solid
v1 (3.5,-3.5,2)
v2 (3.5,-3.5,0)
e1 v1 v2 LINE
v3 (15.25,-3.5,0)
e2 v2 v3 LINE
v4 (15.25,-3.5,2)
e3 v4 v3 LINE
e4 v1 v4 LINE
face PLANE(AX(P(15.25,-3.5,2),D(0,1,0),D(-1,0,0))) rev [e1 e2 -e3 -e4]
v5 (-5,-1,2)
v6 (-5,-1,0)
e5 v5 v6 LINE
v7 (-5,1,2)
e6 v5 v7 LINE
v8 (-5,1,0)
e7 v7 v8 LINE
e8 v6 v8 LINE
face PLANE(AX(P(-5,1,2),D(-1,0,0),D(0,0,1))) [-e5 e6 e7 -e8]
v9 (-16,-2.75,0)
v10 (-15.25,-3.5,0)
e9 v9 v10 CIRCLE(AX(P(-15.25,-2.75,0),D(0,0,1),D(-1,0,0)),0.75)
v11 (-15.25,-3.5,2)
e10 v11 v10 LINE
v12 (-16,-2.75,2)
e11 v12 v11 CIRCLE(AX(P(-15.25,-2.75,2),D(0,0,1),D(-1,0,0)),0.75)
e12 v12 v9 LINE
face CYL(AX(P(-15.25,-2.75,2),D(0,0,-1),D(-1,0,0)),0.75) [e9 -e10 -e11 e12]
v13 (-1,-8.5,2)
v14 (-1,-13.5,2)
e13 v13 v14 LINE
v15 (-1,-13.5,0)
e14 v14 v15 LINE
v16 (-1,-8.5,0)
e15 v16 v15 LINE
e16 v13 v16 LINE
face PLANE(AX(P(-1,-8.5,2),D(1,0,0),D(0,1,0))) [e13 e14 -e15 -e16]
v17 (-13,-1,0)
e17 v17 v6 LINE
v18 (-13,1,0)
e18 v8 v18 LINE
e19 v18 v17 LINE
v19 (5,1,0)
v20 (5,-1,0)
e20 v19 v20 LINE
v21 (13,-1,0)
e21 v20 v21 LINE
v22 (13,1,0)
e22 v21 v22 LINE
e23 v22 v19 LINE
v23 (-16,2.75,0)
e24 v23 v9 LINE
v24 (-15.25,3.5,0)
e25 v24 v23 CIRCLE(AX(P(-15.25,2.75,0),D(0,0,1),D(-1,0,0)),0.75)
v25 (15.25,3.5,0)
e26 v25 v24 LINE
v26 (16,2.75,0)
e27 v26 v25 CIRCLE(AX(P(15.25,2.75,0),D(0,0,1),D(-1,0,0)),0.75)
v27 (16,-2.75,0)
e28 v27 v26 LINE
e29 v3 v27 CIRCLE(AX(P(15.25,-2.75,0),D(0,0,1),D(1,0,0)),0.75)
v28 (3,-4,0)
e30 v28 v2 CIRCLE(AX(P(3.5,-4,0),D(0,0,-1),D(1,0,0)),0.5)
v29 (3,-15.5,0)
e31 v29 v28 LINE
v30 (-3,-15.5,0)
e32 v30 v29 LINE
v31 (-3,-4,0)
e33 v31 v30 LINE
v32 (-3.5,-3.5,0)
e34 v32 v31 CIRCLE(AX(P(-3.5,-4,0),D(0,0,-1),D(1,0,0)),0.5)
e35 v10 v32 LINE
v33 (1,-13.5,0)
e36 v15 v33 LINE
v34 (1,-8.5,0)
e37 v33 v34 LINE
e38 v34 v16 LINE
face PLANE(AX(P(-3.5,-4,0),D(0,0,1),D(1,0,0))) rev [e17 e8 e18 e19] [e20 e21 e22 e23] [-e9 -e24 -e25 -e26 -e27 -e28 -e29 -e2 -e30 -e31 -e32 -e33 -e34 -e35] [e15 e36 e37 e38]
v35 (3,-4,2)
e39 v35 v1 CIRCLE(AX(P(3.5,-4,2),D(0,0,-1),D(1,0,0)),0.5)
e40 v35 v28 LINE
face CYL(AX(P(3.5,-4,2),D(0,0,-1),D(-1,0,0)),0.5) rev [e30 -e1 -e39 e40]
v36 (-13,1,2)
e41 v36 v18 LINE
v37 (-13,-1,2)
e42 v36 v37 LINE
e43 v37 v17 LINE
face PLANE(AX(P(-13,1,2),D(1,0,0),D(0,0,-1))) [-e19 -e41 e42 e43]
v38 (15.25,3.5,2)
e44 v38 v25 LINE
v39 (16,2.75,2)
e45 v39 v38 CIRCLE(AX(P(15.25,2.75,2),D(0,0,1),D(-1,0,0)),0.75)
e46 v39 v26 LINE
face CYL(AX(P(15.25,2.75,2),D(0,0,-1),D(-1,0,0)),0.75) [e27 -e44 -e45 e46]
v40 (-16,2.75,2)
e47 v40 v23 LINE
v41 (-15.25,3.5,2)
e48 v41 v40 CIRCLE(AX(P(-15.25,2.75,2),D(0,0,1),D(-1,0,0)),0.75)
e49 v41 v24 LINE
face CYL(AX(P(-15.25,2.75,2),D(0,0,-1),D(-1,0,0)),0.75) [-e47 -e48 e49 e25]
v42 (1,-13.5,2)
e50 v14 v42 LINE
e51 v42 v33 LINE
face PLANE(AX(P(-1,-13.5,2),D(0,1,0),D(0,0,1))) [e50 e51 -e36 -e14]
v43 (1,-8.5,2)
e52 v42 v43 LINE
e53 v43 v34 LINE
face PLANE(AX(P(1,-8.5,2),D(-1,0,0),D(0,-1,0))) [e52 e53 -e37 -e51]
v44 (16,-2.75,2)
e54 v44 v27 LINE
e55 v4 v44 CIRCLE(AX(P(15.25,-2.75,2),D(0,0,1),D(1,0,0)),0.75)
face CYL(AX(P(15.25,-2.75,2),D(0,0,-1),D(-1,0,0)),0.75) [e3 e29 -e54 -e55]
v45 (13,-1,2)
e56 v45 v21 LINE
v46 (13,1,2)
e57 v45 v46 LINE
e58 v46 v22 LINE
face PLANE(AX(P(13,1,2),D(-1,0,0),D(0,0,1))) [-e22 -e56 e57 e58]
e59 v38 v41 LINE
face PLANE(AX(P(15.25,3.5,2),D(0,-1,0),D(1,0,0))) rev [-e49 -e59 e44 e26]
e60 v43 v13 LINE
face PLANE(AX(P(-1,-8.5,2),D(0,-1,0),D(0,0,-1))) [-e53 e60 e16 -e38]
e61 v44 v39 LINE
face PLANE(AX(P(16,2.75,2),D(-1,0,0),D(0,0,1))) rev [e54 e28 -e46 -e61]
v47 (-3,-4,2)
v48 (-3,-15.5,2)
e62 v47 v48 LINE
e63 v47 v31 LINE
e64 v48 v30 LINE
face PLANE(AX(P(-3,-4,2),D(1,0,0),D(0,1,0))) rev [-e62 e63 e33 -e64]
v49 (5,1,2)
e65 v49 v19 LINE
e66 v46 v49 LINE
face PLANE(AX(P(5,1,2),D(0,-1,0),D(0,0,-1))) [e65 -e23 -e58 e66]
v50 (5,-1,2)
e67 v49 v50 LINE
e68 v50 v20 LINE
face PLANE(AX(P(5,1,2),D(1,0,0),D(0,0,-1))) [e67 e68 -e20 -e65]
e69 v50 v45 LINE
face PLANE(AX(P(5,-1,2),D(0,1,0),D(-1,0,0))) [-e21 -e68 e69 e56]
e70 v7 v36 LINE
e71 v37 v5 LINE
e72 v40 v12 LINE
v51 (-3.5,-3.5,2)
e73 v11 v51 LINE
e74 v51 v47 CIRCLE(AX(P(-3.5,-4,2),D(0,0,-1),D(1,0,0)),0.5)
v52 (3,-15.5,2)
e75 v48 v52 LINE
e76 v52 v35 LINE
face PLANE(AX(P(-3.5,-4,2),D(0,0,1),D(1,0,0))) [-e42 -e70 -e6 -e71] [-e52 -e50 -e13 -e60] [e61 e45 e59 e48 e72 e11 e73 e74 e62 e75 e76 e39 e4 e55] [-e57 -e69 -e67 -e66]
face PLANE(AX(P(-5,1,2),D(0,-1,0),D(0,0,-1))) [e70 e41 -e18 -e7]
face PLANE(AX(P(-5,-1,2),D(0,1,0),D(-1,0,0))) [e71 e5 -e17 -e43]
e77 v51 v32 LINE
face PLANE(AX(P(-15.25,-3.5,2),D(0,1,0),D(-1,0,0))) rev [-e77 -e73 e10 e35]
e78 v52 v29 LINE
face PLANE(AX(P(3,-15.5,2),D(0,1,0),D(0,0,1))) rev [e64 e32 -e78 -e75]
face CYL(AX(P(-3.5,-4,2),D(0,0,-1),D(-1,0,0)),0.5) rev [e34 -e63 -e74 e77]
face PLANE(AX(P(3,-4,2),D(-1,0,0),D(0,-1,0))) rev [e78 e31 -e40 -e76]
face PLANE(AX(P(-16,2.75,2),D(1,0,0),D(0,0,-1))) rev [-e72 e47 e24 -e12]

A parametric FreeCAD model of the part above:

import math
import FreeCAD as App
import Part
import Sketcher

V = App.Vector


def add_polygon(sketch, points):
    """Adds a closed chain of lines whose ends are joined by coincident constraints."""
    first, n = sketch.GeometryCount, len(points)
    for a, b in zip(points, points[1:] + points[:1]):
        sketch.addGeometry(Part.LineSegment(App.Vector(*a, 0), App.Vector(*b, 0)), False)
    for i in range(n):
        sketch.addConstraint(Sketcher.Constraint("Coincident", first + i, 2, first + (i + 1) % n, 1))

doc = App.newDocument("Part")
params = doc.addObject("Spreadsheet::Sheet", "Params")
for row, (alias, value) in enumerate([
    ("sketch1_radius", "0.5 mm"),
    ("sketch1_width", "6 mm"),
    ("sketch1_width2", "2 mm"),
    ("sketch1_width3", "8 mm"),
    ("sketch1_height", "5 mm"),
    ("pad1_length", "2 mm"),
], start=1):
    params.set(f"A{row}", alias)
    params.set(f"B{row}", "=" + value)
    params.setAlias(f"B{row}", alias)

body = doc.addObject("PartDesign::Body", "Body")

# Sketch on XY plane
sketch1 = body.newObject("Sketcher::SketchObject", "Sketch")
sketch1.AttachmentSupport = (doc.getObject("XY_Plane"), [""])
sketch1.MapMode = "FlatFace"
sketch1.addGeometry(Part.LineSegment(V(15.25, 3.5, 0), V(-15.25, 3.5, 0)), False)  # 0
sketch1.addGeometry(Part.ArcOfCircle(Part.Circle(V(-15.25, 2.75, 0), V(0, 0, 1), 0.75), math.radians(90), math.radians(180)), False)  # 1
sketch1.addGeometry(Part.LineSegment(V(-16, 2.75, 0), V(-16, -2.75, 0)), False)  # 2
sketch1.addGeometry(Part.ArcOfCircle(Part.Circle(V(-15.25, -2.75, 0), V(0, 0, 1), 0.75), math.radians(180), math.radians(270)), False)  # 3
sketch1.addGeometry(Part.LineSegment(V(-15.25, -3.5, 0), V(-3.5, -3.5, 0)), False)  # 4
sketch1.addGeometry(Part.ArcOfCircle(Part.Circle(V(-3.5, -4, 0), V(0, 0, 1), 0.5), math.radians(0), math.radians(90)), False)  # 5
sketch1.addGeometry(Part.LineSegment(V(-3, -4, 0), V(-3, -15.5, 0)), False)  # 6
sketch1.addGeometry(Part.LineSegment(V(-3, -15.5, 0), V(3, -15.5, 0)), False)  # 7
sketch1.addGeometry(Part.LineSegment(V(3, -15.5, 0), V(3, -4, 0)), False)  # 8
sketch1.addGeometry(Part.ArcOfCircle(Part.Circle(V(3.5, -4, 0), V(0, 0, 1), 0.5), math.radians(90), math.radians(180)), False)  # 9
sketch1.addGeometry(Part.LineSegment(V(3.5, -3.5, 0), V(15.25, -3.5, 0)), False)  # 10
sketch1.addGeometry(Part.ArcOfCircle(Part.Circle(V(15.25, -2.75, 0), V(0, 0, 1), 0.75), math.radians(-90), math.radians(0)), False)  # 11
sketch1.addGeometry(Part.LineSegment(V(16, -2.75, 0), V(16, 2.75, 0)), False)  # 12
sketch1.addGeometry(Part.ArcOfCircle(Part.Circle(V(15.25, 2.75, 0), V(0, 0, 1), 0.75), math.radians(0), math.radians(90)), False)  # 13
add_polygon(sketch1, [(1, -13.5), (-1, -13.5), (-1, -8.5), (1, -8.5)])  # lines 14-17
add_polygon(sketch1, [(-5, -1), (-13, -1), (-13, 1), (-5, 1)])  # lines 18-21
add_polygon(sketch1, [(13, -1), (5, -1), (5, 1), (13, 1)])  # lines 22-25
sketch1.addConstraint([
    Sketcher.Constraint("Tangent", 0, 2, 1, 1),
    Sketcher.Constraint("Tangent", 1, 2, 2, 1),
    Sketcher.Constraint("Tangent", 2, 2, 3, 1),
    Sketcher.Constraint("Tangent", 3, 2, 4, 1),
    Sketcher.Constraint("Tangent", 4, 2, 5, 2),
    Sketcher.Constraint("Tangent", 5, 1, 6, 1),
    Sketcher.Constraint("Coincident", 6, 2, 7, 1),
    Sketcher.Constraint("Coincident", 7, 2, 8, 1),
    Sketcher.Constraint("Tangent", 8, 2, 9, 2),
    Sketcher.Constraint("Tangent", 9, 1, 10, 1),
    Sketcher.Constraint("Tangent", 10, 2, 11, 1),
    Sketcher.Constraint("Tangent", 11, 2, 12, 1),
    Sketcher.Constraint("Tangent", 12, 2, 13, 1),
    Sketcher.Constraint("Tangent", 13, 2, 0, 1),
    Sketcher.Constraint("Horizontal", 0),
    Sketcher.Constraint("Vertical", 2),
    Sketcher.Constraint("Horizontal", 4),
    Sketcher.Constraint("Vertical", 6),
    Sketcher.Constraint("Horizontal", 7),
    Sketcher.Constraint("Vertical", 8),
    Sketcher.Constraint("Horizontal", 10),
    Sketcher.Constraint("Vertical", 12),
    Sketcher.Constraint("Horizontal", 14),
    Sketcher.Constraint("Vertical", 15),
    Sketcher.Constraint("Horizontal", 16),
    Sketcher.Constraint("Vertical", 17),
    Sketcher.Constraint("Horizontal", 18),
    Sketcher.Constraint("Vertical", 19),
    Sketcher.Constraint("Horizontal", 20),
    Sketcher.Constraint("Vertical", 21),
    Sketcher.Constraint("Horizontal", 22),
    Sketcher.Constraint("Vertical", 23),
    Sketcher.Constraint("Horizontal", 24),
    Sketcher.Constraint("Vertical", 25),
    Sketcher.Constraint("Equal", 1, 3),
    Sketcher.Constraint("Equal", 5, 9),
    Sketcher.Constraint("Equal", 3, 11),
    Sketcher.Constraint("Equal", 11, 13),
    Sketcher.Constraint("Symmetric", 1, 3, 11, 3, -1, 1),
    Sketcher.Constraint("Symmetric", 20, 2, 22, 2, -1, 1),
    Sketcher.Constraint("Symmetric", 18, 2, 24, 2, -1, 1),
    Sketcher.Constraint("Symmetric", 5, 3, 9, 3, -2),
    Sketcher.Constraint("Horizontal", 21, 2, 22, 2),
    Sketcher.Constraint("Equal", 16, 19),
    Sketcher.Constraint("Radius", 5, 0.5),
    Sketcher.Constraint("DistanceX", 7, 1, 7, 2, 6.0),
    Sketcher.Constraint("DistanceX", 14, 2, 14, 1, 2.0),
    Sketcher.Constraint("DistanceX", 18, 2, 18, 1, 8.0),
    Sketcher.Constraint("DistanceY", 15, 1, 15, 2, 5.0),
    Sketcher.Constraint("Radius", 1, 0.75),
    Sketcher.Constraint("DistanceX", 0, 2, 0, 1, 30.5),
    Sketcher.Constraint("DistanceY", 2, 2, 2, 1, 5.5),
    Sketcher.Constraint("DistanceY", 6, 2, 6, 1, 11.5),
    Sketcher.Constraint("DistanceX", 14, 2, -1, 1, 1.0),
    Sketcher.Constraint("DistanceX", 18, 2, -1, 1, 13.0),
    Sketcher.Constraint("DistanceY", 6, 2, 14, 2, 2.0),
])
sketch1.setExpression("Constraints[56]", "Params.sketch1_radius")
sketch1.setExpression("Constraints[57]", "Params.sketch1_width")
sketch1.setExpression("Constraints[58]", "Params.sketch1_width2")
sketch1.setExpression("Constraints[59]", "Params.sketch1_width3")
sketch1.setExpression("Constraints[60]", "Params.sketch1_height")
pad1 = body.newObject("PartDesign::Pad", "Pad")
pad1.Profile = sketch1
pad1.setExpression("Length", "Params.pad1_length")

doc.recompute()
